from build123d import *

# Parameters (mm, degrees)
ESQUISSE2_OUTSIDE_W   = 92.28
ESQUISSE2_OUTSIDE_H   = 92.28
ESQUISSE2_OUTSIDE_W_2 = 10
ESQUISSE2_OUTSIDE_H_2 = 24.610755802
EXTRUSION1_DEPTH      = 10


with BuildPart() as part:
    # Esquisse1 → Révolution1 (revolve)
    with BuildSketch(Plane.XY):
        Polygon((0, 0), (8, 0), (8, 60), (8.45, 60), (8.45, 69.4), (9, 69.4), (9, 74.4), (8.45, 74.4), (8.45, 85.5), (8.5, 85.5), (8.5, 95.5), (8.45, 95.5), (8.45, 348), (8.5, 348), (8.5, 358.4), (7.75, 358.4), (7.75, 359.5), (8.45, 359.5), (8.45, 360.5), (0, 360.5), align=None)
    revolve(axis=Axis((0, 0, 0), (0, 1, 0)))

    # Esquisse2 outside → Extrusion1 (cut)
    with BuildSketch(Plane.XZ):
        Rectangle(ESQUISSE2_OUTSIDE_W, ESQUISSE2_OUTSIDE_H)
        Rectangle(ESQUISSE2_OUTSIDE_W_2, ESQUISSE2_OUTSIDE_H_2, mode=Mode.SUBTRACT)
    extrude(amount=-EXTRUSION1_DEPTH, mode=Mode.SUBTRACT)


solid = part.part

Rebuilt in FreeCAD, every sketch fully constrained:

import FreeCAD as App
import Part
import Sketcher
Q = App.Units.Quantity


def add_polygon(sketch, points):
    """Adds a closed chain of lines whose ends are joined by coincident constraints."""
    first, n = sketch.GeometryCount, len(points)
    for a, b in zip(points, points[1:] + points[:1]):
        sketch.addGeometry(Part.LineSegment(App.Vector(*a, 0), App.Vector(*b, 0)), False)
    for i in range(n):
        sketch.addConstraint(Sketcher.Constraint("Coincident", first + i, 2, first + (i + 1) % n, 1))

doc = App.newDocument("Part")
body = doc.addObject("PartDesign::Body", "Body")

sketch1 = body.newObject("Sketcher::SketchObject", "Sketch")
sketch1.AttachmentSupport = (doc.getObject("XY_Plane"), [""])
sketch1.MapMode = "FlatFace"
add_polygon(sketch1, [(0, 0), (8, 0), (8, 60), (8.45, 60), (8.45, 69.4), (9, 69.4), (9, 74.4), (8.45, 74.4), (8.45, 85.5), (8.5, 85.5), (8.5, 95.5), (8.45, 95.5), (8.45, 348), (8.5, 348), (8.5, 358.4), (7.75, 358.4), (7.75, 359.5), (8.45, 359.5), (8.45, 360.5), (0, 360.5)])
sketch1.addConstraint([
    Sketcher.Constraint("Horizontal", 0),
    Sketcher.Constraint("Vertical", 1),
    Sketcher.Constraint("Horizontal", 2),
    Sketcher.Constraint("Vertical", 3),
    Sketcher.Constraint("Horizontal", 4),
    Sketcher.Constraint("Vertical", 5),
    Sketcher.Constraint("Horizontal", 6),
    Sketcher.Constraint("Vertical", 7),
    Sketcher.Constraint("Horizontal", 8),
    Sketcher.Constraint("Vertical", 9),
    Sketcher.Constraint("Horizontal", 10),
    Sketcher.Constraint("Vertical", 11),
    Sketcher.Constraint("Horizontal", 12),
    Sketcher.Constraint("Vertical", 13),
    Sketcher.Constraint("Horizontal", 14),
    Sketcher.Constraint("Vertical", 15),
    Sketcher.Constraint("Horizontal", 16),
    Sketcher.Constraint("Vertical", 17),
    Sketcher.Constraint("Horizontal", 18),
    Sketcher.Constraint("Vertical", 19),
    Sketcher.Constraint("Coincident", 19, 2, -1, 1),
    Sketcher.Constraint("Vertical", 3, 2, 6, 2),
    Sketcher.Constraint("Vertical", 7, 2, 10, 2),
    Sketcher.Constraint("Vertical", 9, 2, 12, 2),
    Sketcher.Constraint("Vertical", 11, 2, 16, 2),
    Sketcher.Constraint("DistanceX", 0, 1, 0, 2, Q("8 mm")),
    Sketcher.Constraint("DistanceY", 1, 1, 1, 2, Q("60 mm")),
    Sketcher.Constraint("DistanceY", 5, 1, 5, 2, Q("5 mm")),
    Sketcher.Constraint("DistanceY", 9, 1, 9, 2, Q("10 mm")),
    Sketcher.Constraint("DistanceY", 17, 1, 17, 2, Q("1 mm")),
    Sketcher.Constraint("DistanceX", 16, 1, 16, 2, Q("0.7 mm")),
    Sketcher.Constraint("DistanceY", 3, 1, 3, 2, Q("9.4 mm")),
    Sketcher.Constraint("DistanceY", 7, 1, 7, 2, Q("11.1 mm")),
    Sketcher.Constraint("DistanceY", 11, 1, 11, 2, Q("252.5 mm")),
    Sketcher.Constraint("DistanceY", 13, 1, 13, 2, Q("10.4 mm")),
    Sketcher.Constraint("DistanceY", 15, 1, 15, 2, Q("1.1 mm")),
    Sketcher.Constraint("DistanceX", -1, 1, 4, 2, Q("9 mm")),
    Sketcher.Constraint("DistanceX", 2, 1, 2, 2, Q("0.45 mm")),
    Sketcher.Constraint("DistanceX", 8, 1, 8, 2, Q("0.05 mm")),
])
revolution = body.newObject("PartDesign::Revolution", "Revolution")
revolution.Profile = sketch1
revolution.ReferenceAxis = (sketch1, ["V_Axis"])
revolution.Angle = 360

sketch2 = body.newObject("Sketcher::SketchObject", "Sketch001")
sketch2.AttachmentSupport = (doc.getObject("XZ_Plane"), [""])
sketch2.MapMode = "FlatFace"
add_polygon(sketch2, [(-46.14, 46.14), (-46.14, -46.14), (46.14, -46.14), (46.14, 46.14)])
add_polygon(sketch2, [(5, -12.305378), (-5, -12.305378), (-5, 12.305378), (5, 12.305378)])
sketch2.addConstraint([
    Sketcher.Constraint("Vertical", 0),
    Sketcher.Constraint("Horizontal", 1),
    Sketcher.Constraint("Vertical", 2),
    Sketcher.Constraint("Horizontal", 3),
    Sketcher.Constraint("Horizontal", 4),
    Sketcher.Constraint("Vertical", 5),
    Sketcher.Constraint("Horizontal", 6),
    Sketcher.Constraint("Vertical", 7),
    Sketcher.Constraint("Symmetric", 0, 2, 2, 2, -1, 1),
    Sketcher.Constraint("Symmetric", 4, 2, 6, 2, -1, 1),
    Sketcher.Constraint("Equal", 3, 0),
    Sketcher.Constraint("DistanceX", 4, 2, 4, 1, Q("10 mm")),
    Sketcher.Constraint("DistanceX", 1, 1, 1, 2, Q("92.28 mm")),
    Sketcher.Constraint("DistanceY", 5, 1, 5, 2, Q("24.610756 mm")),
])
pocket1 = body.newObject("PartDesign::Pocket", "Pocket")
pocket1.Profile = sketch2
pocket1.Length = 10

doc.recompute()
